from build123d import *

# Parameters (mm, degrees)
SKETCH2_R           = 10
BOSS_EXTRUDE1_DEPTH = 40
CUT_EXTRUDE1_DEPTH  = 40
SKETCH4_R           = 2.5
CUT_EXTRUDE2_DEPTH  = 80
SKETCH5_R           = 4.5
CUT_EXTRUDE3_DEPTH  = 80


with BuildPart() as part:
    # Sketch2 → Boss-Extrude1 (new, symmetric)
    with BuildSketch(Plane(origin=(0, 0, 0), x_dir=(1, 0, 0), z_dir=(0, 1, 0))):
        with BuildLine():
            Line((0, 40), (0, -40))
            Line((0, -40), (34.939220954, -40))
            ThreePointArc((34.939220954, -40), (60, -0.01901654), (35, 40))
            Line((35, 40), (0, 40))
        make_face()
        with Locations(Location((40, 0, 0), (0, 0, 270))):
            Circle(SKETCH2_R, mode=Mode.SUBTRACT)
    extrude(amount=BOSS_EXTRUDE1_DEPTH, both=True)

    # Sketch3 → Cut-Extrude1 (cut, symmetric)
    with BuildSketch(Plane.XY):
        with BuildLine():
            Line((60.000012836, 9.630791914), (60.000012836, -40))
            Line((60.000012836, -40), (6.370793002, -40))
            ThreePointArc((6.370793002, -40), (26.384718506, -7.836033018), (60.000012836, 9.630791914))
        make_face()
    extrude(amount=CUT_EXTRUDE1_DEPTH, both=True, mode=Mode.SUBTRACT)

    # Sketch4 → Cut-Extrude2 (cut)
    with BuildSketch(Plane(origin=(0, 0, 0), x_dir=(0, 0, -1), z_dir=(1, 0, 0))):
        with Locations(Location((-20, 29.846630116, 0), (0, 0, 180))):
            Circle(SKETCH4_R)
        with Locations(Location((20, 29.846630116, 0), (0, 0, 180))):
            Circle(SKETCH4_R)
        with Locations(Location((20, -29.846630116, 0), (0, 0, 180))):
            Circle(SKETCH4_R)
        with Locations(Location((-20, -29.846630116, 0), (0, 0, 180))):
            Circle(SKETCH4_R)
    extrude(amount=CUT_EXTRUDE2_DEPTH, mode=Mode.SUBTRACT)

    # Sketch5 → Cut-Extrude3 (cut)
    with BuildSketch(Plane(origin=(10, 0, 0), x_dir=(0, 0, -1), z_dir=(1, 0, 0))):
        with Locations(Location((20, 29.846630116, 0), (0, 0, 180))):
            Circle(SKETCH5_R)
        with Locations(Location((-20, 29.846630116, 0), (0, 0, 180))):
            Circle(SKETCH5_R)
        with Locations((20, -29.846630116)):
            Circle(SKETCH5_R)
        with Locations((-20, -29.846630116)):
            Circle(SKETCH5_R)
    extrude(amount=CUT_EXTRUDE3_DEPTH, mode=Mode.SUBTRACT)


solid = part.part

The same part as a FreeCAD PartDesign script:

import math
import FreeCAD as App
import Part
import Sketcher

V = App.Vector
Q = App.Units.Quantity

doc = App.newDocument("Part")
body = doc.addObject("PartDesign::Body", "Body")

# Sketch on XZ plane
sketch1 = body.newObject("Sketcher::SketchObject", "Sketch")
sketch1.AttachmentSupport = (doc.getObject("XZ_Plane"), [""])
sketch1.MapMode = "FlatFace"
sketch1.addGeometry(Part.LineSegment(V(0, -40, 0), V(0, 40, 0)), False)
sketch1.addGeometry(Part.LineSegment(V(0, 40, 0), V(34.939221, 40, 0)), False)
sketch1.addGeometry(Part.ArcOfCircle(Part.Circle(V(15.523657, -0.014774, 0), V(0, 0, 1), 44.476356), math.radians(-64.02982), math.radians(64.116879)), False)
sketch1.addGeometry(Part.LineSegment(V(35, -40, 0), V(0, -40, 0)), False)
sketch1.addGeometry(Part.Circle(V(40, 0, 0), V(0, 0, 1), 10), False)
sketch1.addConstraint(Sketcher.Constraint("Coincident", 0, 2, 1, 1))
sketch1.addConstraint(Sketcher.Constraint("Coincident", 1, 2, 2, 2))
sketch1.addConstraint(Sketcher.Constraint("Coincident", 2, 1, 3, 1))
sketch1.addConstraint(Sketcher.Constraint("Coincident", 3, 2, 0, 1))
sketch1.addConstraint(Sketcher.Constraint("Vertical", 0))
sketch1.addConstraint(Sketcher.Constraint("Horizontal", 1))
sketch1.addConstraint(Sketcher.Constraint("Horizontal", 3))
sketch1.addConstraint(Sketcher.Constraint("Symmetric", 0, 2, 3, 2, -1, 1))
sketch1.addConstraint(Sketcher.Constraint("PointOnObject", 4, 3, -1))
sketch1.addConstraint(Sketcher.Constraint("Diameter", 4, Q("20 mm")))
sketch1.addConstraint(Sketcher.Constraint("DistanceX", 3, 2, 3, 1, Q("35 mm")))
sketch1.addConstraint(Sketcher.Constraint("DistanceY", 0, 1, 0, 2, Q("80 mm")))
sketch1.addConstraint(Sketcher.Constraint("DistanceX", -1, 1, 4, 3, Q("40 mm")))
sketch1.addConstraint(Sketcher.Constraint("Radius", 2, Q("44.476356 mm")))
sketch1.addConstraint(Sketcher.Constraint("DistanceX", 1, 1, 1, 2, Q("34.939221 mm")))
pad1 = body.newObject("PartDesign::Pad", "Pad")
pad1.Profile = sketch1
pad1.Length = 80
pad1.Midplane = True

# Sketch on XY plane
sketch2 = body.newObject("Sketcher::SketchObject", "Sketch001")
sketch2.AttachmentSupport = (doc.getObject("XY_Plane"), [""])
sketch2.MapMode = "FlatFace"
sketch2.addGeometry(Part.LineSegment(V(60.000013, -40, 0), V(60.000013, 9.630792, 0)), False)
sketch2.addGeometry(Part.ArcOfCircle(Part.Circle(V(75.060201, -60.43298, 0), V(0, 0, 1), 71.664087), math.radians(102.131126), math.radians(163.433882)), False)
sketch2.addGeometry(Part.LineSegment(V(6.370793, -40, 0), V(60.000013, -40, 0)), False)
sketch2.addConstraint(Sketcher.Constraint("Coincident", 0, 2, 1, 1))
sketch2.addConstraint(Sketcher.Constraint("Coincident", 1, 2, 2, 1))
sketch2.addConstraint(Sketcher.Constraint("Coincident", 2, 2, 0, 1))
sketch2.addConstraint(Sketcher.Constraint("Vertical", 0))
sketch2.addConstraint(Sketcher.Constraint("Horizontal", 2))
sketch2.addConstraint(Sketcher.Constraint("DistanceY", 1, 2, -1, 1, Q("40 mm")))
sketch2.addConstraint(Sketcher.Constraint("Radius", 1, Q("71.664087 mm")))
sketch2.addConstraint(Sketcher.Constraint("DistanceX", 2, 1, 2, 2, Q("53.62922 mm")))
sketch2.addConstraint(Sketcher.Constraint("DistanceY", 0, 1, 0, 2, Q("49.630792 mm")))
sketch2.addConstraint(Sketcher.Constraint("DistanceX", -1, 1, 1, 3, Q("75.060201 mm")))
pocket1 = body.newObject("PartDesign::Pocket", "Pocket")
pocket1.Profile = sketch2
pocket1.Length = 80
pocket1.Midplane = True

# Sketch on YZ plane
sketch3 = body.newObject("Sketcher::SketchObject", "Sketch002")
sketch3.AttachmentSupport = (doc.getObject("YZ_Plane"), [""])
sketch3.MapMode = "FlatFace"
sketch3.addGeometry(Part.Circle(V(29.84663, 20, 0), V(0, 0, 1), 2.5), False)
sketch3.addGeometry(Part.Circle(V(29.84663, -20, 0), V(0, 0, 1), 2.5), False)
sketch3.addGeometry(Part.Circle(V(-29.84663, -20, 0), V(0, 0, 1), 2.5), False)
sketch3.addGeometry(Part.Circle(V(-29.84663, 20, 0), V(0, 0, 1), 2.5), False)
sketch3.addConstraint(Sketcher.Constraint("Equal", 0, 1))
sketch3.addConstraint(Sketcher.Constraint("Equal", 1, 2))
sketch3.addConstraint(Sketcher.Constraint("Equal", 2, 3))
sketch3.addConstraint(Sketcher.Constraint("Symmetric", 0, 3, 2, 3, -1, 1))
sketch3.addConstraint(Sketcher.Constraint("Symmetric", 1, 3, 3, 3, -1, 1))
sketch3.addConstraint(Sketcher.Constraint("Symmetric", 1, 3, 2, 3, -2))
sketch3.addConstraint(Sketcher.Constraint("Diameter", 0, Q("5 mm")))
sketch3.addConstraint(Sketcher.Constraint("DistanceY", -1, 1, 0, 3, Q("20 mm")))
sketch3.addConstraint(Sketcher.Constraint("DistanceX", -1, 1, 0, 3, Q("29.84663 mm")))
pocket2 = body.newObject("PartDesign::Pocket", "Pocket001")
pocket2.Profile = sketch3
pocket2.Length = 80
pocket2.Reversed = True

# Sketch on YZ plane
sketch4 = body.newObject("Sketcher::SketchObject", "Sketch003")
sketch4.AttachmentSupport = (doc.getObject("YZ_Plane"), [""])
sketch4.MapMode = "FlatFace"
sketch4.AttachmentOffset = App.Placement(V(0, 0, 10), App.Rotation())
sketch4.addGeometry(Part.Circle(V(29.84663, -20, 0), V(0, 0, 1), 4.5), False)
sketch4.addGeometry(Part.Circle(V(29.84663, 20, 0), V(0, 0, 1), 4.5), False)
sketch4.addGeometry(Part.Circle(V(-29.84663, -20, 0), V(0, 0, 1), 4.5), False)
sketch4.addGeometry(Part.Circle(V(-29.84663, 20, 0), V(0, 0, 1), 4.5), False)
sketch4.addConstraint(Sketcher.Constraint("Equal", 0, 1))
sketch4.addConstraint(Sketcher.Constraint("Equal", 1, 2))
sketch4.addConstraint(Sketcher.Constraint("Equal", 2, 3))
sketch4.addConstraint(Sketcher.Constraint("Symmetric", 1, 3, 2, 3, -1, 1))
sketch4.addConstraint(Sketcher.Constraint("Symmetric", 0, 3, 3, 3, -1, 1))
sketch4.addConstraint(Sketcher.Constraint("Symmetric", 0, 3, 2, 3, -2))
sketch4.addConstraint(Sketcher.Constraint("Diameter", 0, Q("9 mm")))
sketch4.addConstraint(Sketcher.Constraint("DistanceY", 0, 3, -1, 1, Q("20 mm")))
sketch4.addConstraint(Sketcher.Constraint("DistanceX", -1, 1, 0, 3, Q("29.84663 mm")))
pocket3 = body.newObject("PartDesign::Pocket", "Pocket002")
pocket3.Profile = sketch4
pocket3.Length = 80
pocket3.Reversed = True

doc.recompute()
